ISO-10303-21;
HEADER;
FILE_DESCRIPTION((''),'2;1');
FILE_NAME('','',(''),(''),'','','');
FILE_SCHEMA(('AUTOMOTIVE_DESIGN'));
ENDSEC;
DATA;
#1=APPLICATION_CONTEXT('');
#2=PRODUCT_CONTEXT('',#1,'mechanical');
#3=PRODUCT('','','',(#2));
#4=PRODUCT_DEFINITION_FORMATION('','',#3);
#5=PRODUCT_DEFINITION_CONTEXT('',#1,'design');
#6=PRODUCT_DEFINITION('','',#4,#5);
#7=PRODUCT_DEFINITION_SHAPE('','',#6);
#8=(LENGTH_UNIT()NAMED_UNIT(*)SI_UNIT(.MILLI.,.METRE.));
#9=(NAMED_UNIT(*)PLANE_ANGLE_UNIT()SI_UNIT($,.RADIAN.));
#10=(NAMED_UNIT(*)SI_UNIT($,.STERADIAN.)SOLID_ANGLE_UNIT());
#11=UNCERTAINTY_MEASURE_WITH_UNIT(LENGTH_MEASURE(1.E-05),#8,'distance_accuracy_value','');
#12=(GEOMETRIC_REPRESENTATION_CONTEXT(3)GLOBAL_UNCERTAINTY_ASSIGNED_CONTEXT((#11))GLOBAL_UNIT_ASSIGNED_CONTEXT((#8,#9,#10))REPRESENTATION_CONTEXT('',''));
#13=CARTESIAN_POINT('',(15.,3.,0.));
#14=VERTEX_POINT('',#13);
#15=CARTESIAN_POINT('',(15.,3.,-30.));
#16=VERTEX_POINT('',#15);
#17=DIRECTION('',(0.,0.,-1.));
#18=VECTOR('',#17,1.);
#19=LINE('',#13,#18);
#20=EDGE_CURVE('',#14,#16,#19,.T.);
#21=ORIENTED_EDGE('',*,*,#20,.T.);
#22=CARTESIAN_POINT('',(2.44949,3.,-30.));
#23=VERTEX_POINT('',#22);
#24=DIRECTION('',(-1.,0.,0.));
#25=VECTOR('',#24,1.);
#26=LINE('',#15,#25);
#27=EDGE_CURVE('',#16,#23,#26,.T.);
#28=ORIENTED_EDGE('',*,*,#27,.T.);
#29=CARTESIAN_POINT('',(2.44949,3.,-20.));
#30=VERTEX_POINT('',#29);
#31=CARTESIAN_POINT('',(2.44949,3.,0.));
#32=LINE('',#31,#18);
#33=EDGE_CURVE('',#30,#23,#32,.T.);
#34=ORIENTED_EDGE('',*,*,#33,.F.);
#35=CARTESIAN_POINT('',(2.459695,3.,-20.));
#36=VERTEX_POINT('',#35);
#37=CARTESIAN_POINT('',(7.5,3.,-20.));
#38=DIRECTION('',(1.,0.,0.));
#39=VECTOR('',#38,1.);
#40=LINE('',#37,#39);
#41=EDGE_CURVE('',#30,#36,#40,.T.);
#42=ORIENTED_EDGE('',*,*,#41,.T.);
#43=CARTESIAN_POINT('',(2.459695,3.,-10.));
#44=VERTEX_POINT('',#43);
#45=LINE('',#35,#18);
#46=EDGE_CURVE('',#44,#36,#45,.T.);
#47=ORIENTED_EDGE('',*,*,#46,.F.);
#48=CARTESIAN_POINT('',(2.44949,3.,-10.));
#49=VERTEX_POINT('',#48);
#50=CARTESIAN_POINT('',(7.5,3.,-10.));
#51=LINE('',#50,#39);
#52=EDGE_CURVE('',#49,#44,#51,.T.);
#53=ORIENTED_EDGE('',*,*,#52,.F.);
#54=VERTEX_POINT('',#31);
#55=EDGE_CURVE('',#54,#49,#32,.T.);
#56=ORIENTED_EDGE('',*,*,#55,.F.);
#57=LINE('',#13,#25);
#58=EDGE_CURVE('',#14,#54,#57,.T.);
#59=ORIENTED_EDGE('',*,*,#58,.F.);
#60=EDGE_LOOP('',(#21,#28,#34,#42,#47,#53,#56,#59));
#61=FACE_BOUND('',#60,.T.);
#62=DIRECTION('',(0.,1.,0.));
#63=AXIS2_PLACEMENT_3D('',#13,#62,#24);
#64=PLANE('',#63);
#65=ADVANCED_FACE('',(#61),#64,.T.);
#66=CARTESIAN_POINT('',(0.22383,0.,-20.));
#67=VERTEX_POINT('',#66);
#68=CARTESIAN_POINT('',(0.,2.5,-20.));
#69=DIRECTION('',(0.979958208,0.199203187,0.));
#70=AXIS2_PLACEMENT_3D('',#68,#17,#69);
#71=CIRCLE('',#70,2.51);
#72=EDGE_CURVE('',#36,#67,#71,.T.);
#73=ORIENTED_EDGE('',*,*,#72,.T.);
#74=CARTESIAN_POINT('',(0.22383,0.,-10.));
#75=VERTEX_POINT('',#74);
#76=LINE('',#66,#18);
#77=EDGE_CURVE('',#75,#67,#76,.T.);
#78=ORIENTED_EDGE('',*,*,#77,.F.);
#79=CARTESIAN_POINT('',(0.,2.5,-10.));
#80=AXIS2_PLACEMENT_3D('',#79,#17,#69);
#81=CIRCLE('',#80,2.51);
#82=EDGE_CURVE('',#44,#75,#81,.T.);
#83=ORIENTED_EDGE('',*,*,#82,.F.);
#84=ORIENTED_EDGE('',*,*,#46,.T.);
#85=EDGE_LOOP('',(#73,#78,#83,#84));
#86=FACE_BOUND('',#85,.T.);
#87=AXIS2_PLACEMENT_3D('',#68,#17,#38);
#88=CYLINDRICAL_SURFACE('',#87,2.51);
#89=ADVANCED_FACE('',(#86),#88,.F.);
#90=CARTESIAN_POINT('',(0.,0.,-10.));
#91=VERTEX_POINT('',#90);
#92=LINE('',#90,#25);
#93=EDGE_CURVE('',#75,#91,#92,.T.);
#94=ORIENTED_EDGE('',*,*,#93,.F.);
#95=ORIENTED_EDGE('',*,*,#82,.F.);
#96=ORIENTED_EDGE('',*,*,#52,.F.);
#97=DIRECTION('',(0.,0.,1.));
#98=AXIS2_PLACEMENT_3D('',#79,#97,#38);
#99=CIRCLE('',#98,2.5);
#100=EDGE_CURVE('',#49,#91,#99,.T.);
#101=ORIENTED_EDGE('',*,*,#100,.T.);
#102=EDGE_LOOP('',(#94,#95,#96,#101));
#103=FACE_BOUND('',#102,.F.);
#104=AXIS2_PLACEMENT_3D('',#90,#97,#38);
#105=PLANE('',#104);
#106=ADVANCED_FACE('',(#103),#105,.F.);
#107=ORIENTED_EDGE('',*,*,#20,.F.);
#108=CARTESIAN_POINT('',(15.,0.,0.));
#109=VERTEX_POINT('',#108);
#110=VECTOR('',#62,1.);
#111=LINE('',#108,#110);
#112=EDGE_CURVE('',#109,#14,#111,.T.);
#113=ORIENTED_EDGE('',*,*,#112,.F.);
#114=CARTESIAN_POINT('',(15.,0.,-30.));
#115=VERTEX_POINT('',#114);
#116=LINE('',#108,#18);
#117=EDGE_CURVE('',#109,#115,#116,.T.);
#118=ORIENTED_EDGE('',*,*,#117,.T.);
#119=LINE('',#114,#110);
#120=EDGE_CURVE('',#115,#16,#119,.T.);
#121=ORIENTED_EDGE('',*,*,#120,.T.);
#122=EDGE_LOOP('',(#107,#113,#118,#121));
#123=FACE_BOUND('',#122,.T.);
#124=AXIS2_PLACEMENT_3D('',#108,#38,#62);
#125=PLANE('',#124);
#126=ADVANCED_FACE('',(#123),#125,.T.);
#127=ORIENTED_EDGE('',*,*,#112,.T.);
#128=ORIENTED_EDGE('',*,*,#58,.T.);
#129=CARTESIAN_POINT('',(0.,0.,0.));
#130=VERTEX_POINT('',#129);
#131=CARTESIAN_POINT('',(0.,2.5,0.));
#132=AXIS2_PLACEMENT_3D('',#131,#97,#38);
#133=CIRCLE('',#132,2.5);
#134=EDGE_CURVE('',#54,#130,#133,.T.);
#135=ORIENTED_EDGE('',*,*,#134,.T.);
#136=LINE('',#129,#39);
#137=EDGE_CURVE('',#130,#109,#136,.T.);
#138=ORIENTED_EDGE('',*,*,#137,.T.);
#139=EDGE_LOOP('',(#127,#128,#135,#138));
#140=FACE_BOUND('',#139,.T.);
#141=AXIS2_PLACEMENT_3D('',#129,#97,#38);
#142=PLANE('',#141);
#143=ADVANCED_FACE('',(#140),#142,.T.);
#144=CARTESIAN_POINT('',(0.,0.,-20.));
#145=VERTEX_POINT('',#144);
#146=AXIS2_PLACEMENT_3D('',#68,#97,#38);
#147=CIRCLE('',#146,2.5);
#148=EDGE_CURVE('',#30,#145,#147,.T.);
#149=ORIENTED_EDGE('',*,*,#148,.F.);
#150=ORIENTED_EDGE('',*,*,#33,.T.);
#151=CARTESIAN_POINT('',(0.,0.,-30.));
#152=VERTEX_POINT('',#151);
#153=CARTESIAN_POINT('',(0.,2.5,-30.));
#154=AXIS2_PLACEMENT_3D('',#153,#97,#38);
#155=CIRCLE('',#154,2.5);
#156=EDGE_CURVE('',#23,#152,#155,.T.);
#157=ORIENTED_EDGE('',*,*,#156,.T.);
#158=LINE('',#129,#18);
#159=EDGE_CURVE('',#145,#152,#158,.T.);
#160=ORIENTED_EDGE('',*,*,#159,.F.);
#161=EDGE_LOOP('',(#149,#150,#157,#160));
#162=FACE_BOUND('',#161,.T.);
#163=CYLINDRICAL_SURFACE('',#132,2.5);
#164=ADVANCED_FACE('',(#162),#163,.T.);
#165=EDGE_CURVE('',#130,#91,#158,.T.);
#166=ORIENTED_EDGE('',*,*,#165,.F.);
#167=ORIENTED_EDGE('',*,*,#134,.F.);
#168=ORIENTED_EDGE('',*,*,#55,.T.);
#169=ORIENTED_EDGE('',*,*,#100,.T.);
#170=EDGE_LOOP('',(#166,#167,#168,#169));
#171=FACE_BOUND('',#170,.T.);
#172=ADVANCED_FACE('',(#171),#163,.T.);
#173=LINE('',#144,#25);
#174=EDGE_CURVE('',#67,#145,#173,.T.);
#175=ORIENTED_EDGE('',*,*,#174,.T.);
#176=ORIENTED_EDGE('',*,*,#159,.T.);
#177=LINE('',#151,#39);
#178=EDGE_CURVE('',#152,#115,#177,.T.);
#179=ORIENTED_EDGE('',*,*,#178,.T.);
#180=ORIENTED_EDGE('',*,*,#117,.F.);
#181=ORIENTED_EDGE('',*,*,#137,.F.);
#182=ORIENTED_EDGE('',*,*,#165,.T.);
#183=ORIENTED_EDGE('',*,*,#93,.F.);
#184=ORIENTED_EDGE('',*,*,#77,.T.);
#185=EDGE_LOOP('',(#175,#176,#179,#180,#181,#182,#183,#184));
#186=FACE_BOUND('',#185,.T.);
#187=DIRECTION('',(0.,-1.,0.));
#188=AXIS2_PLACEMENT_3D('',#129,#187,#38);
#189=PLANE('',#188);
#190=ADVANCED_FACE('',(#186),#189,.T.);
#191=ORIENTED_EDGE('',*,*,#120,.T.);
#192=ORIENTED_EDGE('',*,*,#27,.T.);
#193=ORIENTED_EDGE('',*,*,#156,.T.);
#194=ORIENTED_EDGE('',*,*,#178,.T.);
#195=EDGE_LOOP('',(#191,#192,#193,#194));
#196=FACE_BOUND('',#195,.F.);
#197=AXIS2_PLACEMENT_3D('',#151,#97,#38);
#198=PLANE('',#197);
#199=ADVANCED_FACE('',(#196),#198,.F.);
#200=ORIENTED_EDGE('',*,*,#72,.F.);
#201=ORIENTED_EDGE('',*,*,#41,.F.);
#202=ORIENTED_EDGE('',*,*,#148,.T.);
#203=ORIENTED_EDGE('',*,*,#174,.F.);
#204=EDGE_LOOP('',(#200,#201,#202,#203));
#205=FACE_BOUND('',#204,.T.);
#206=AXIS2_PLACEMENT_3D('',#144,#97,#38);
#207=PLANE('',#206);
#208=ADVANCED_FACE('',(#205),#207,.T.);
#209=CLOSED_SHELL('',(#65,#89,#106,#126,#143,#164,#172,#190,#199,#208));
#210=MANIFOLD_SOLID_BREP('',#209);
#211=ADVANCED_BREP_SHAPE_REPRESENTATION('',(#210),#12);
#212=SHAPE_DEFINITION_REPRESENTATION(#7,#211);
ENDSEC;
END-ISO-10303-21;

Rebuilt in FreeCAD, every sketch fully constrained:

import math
import FreeCAD as App
import Part
import Sketcher

V = App.Vector
Q = App.Units.Quantity

doc = App.newDocument("Part")
body = doc.addObject("PartDesign::Body", "Body")

sketch1 = body.newObject("Sketcher::SketchObject", "Sketch")
sketch1.AttachmentSupport = (doc.getObject("XY_Plane"), [""])
sketch1.MapMode = "FlatFace"
sketch1.addGeometry(Part.LineSegment(V(15, 3, 0), V(2.4, 3, 0)), False)
sketch1.addGeometry(Part.ArcOfCircle(Part.Circle(V(0, 2.5, 0), V(0, 0, 1), 2.5), math.radians(12), math.radians(270)), False)
sketch1.addGeometry(Part.LineSegment(V(0, 0, 0), V(15, 0, 0)), False)
sketch1.addGeometry(Part.LineSegment(V(15, 0, 0), V(15, 3, 0)), False)
sketch1.addConstraint(Sketcher.Constraint("Coincident", 0, 2, 1, 1))
sketch1.addConstraint(Sketcher.Constraint("Tangent", 1, 2, 2, 1))
sketch1.addConstraint(Sketcher.Constraint("Coincident", 2, 2, 3, 1))
sketch1.addConstraint(Sketcher.Constraint("Coincident", 3, 2, 0, 1))
sketch1.addConstraint(Sketcher.Constraint("Horizontal", 0))
sketch1.addConstraint(Sketcher.Constraint("Horizontal", 2))
sketch1.addConstraint(Sketcher.Constraint("Vertical", 3))
sketch1.addConstraint(Sketcher.Constraint("Coincident", 1, 2, -1, 1))
sketch1.addConstraint(Sketcher.Constraint("Radius", 1, Q("2.5 mm")))
sketch1.addConstraint(Sketcher.Constraint("DistanceX", 2, 1, 2, 2, Q("15 mm")))
sketch1.addConstraint(Sketcher.Constraint("DistanceY", 3, 1, 3, 2, Q("3 mm")))
pad1 = body.newObject("PartDesign::Pad", "Pad")
pad1.Profile = sketch1
pad1.Length = 30
pad1.Reversed = True

sketch2 = body.newObject("Sketcher::SketchObject", "Sketch001")
sketch2.AttachmentSupport = (doc.getObject("XY_Plane"), [""])
sketch2.MapMode = "FlatFace"
sketch2.AttachmentOffset = App.Placement(V(0, 0, -20), App.Rotation())
sketch2.addGeometry(Part.Circle(V(0, 2.5, 0), V(0, 0, 1), 2.5), False)
sketch2.addConstraint(Sketcher.Constraint("PointOnObject", 0, 3, -2))
sketch2.addConstraint(Sketcher.Constraint("Diameter", 0, Q("5.02 mm")))
sketch2.addConstraint(Sketcher.Constraint("DistanceY", -1, 1, 0, 3, Q("2.5 mm")))
pocket1 = body.newObject("PartDesign::Pocket", "Pocket")
pocket1.Profile = sketch2
pocket1.Length = 10
pocket1.Reversed = True

doc.recompute()
